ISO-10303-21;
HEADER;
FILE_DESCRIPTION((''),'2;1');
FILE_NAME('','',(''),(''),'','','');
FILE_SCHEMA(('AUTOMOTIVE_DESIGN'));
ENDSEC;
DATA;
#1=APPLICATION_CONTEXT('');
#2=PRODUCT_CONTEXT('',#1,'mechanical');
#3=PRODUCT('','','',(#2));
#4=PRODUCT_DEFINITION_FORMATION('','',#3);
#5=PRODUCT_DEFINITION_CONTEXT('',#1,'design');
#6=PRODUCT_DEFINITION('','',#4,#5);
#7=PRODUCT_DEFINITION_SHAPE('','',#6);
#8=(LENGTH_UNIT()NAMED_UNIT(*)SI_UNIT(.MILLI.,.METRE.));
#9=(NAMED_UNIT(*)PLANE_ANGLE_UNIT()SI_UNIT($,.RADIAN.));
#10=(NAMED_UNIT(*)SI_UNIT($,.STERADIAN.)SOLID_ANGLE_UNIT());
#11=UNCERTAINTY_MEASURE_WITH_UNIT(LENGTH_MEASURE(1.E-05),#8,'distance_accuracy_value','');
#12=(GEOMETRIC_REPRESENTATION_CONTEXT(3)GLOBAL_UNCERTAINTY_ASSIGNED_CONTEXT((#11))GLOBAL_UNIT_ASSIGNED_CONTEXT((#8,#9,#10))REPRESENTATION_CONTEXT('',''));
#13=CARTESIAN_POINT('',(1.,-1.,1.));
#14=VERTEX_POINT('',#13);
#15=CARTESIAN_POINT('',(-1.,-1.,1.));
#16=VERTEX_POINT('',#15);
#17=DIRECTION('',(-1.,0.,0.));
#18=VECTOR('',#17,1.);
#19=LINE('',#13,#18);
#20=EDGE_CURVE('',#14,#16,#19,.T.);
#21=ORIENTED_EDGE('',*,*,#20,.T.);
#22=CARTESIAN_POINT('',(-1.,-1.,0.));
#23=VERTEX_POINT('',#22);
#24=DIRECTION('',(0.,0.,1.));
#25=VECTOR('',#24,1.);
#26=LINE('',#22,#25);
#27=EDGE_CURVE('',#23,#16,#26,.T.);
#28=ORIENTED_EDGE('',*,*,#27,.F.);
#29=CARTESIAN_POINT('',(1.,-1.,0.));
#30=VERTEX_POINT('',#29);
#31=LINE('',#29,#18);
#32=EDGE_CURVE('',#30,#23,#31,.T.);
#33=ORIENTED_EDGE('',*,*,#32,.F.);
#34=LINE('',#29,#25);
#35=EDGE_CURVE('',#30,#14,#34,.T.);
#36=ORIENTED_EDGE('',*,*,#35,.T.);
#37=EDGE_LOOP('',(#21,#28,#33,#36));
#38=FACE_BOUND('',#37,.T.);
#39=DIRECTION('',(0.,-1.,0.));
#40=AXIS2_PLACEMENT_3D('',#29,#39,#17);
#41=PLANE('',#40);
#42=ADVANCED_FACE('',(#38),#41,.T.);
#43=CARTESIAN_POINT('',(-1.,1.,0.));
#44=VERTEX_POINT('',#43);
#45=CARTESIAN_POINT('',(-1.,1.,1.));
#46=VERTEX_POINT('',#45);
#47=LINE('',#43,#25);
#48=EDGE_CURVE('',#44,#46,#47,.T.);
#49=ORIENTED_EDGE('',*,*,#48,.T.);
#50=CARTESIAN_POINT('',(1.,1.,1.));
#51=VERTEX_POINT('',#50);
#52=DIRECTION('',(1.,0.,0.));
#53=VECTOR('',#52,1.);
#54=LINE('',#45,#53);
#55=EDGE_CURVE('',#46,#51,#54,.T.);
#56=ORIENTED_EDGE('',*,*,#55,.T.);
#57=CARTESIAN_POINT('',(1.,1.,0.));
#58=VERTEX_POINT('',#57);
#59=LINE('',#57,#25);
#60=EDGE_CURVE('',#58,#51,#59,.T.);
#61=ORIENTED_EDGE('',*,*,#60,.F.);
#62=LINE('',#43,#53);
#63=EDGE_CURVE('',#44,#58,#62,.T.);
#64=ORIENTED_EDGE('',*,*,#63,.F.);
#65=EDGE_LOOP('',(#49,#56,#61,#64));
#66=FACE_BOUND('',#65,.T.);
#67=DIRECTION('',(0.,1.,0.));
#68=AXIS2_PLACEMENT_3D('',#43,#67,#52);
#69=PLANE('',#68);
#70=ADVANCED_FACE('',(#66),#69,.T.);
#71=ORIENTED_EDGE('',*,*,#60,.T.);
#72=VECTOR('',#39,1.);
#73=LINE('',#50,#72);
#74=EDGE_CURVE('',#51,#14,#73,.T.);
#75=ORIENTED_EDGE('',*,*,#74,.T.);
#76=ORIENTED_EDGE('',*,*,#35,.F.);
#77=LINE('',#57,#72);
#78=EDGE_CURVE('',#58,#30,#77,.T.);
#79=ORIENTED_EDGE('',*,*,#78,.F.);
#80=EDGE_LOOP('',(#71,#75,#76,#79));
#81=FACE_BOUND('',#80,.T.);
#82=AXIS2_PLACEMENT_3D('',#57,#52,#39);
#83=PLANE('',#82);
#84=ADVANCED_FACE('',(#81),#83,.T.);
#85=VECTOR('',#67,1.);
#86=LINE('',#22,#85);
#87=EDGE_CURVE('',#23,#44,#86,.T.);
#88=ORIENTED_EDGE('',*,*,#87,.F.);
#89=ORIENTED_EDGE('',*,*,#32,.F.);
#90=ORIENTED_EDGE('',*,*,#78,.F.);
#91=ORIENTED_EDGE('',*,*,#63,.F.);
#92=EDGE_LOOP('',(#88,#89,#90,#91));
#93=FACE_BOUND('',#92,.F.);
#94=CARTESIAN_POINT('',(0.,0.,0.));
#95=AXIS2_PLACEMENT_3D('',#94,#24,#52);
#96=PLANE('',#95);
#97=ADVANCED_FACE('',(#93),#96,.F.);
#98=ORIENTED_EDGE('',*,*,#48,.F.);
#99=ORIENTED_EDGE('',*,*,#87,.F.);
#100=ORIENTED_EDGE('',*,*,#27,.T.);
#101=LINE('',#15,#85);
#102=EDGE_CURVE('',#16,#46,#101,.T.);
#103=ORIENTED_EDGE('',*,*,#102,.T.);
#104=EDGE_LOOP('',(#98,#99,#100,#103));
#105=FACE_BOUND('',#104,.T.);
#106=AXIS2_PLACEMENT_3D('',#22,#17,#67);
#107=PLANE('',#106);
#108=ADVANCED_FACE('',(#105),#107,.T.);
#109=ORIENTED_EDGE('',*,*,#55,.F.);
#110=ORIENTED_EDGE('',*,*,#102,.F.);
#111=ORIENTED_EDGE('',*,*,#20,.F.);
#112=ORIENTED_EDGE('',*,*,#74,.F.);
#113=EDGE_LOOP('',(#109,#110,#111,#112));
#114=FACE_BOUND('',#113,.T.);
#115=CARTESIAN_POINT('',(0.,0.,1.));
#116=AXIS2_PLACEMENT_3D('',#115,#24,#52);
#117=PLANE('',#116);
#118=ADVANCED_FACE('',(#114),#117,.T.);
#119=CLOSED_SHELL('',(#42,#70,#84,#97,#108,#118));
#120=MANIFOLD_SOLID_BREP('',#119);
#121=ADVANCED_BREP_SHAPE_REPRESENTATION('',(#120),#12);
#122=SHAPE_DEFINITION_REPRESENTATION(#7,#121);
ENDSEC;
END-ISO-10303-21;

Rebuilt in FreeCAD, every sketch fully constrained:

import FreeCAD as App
import Part
import Sketcher
from FreeCAD import Vector
Q = App.Units.Quantity

doc = App.newDocument("Part")
body = doc.addObject("PartDesign::Body", "Body")

# Sketch on XY plane
sketch1 = body.newObject("Sketcher::SketchObject", "Sketch")
sketch1.AttachmentSupport = (doc.getObject("XY_Plane"), [""])
sketch1.MapMode = "FlatFace"
sketch1.addGeometry(Part.LineSegment(Vector(-1, -1, 0), Vector(1, -1, 0)), False)
sketch1.addGeometry(Part.LineSegment(Vector(1, -1, 0), Vector(1, 1, 0)), False)
sketch1.addGeometry(Part.LineSegment(Vector(1, 1, 0), Vector(-1, 1, 0)), False)
sketch1.addGeometry(Part.LineSegment(Vector(-1, 1, 0), Vector(-1, -1, 0)), False)
sketch1.addConstraint(Sketcher.Constraint("Coincident", 0, 2, 1, 1))
sketch1.addConstraint(Sketcher.Constraint("Coincident", 1, 2, 2, 1))
sketch1.addConstraint(Sketcher.Constraint("Coincident", 2, 2, 3, 1))
sketch1.addConstraint(Sketcher.Constraint("Coincident", 3, 2, 0, 1))
sketch1.addConstraint(Sketcher.Constraint("Horizontal", 0))
sketch1.addConstraint(Sketcher.Constraint("Vertical", 1))
sketch1.addConstraint(Sketcher.Constraint("Horizontal", 2))
sketch1.addConstraint(Sketcher.Constraint("Vertical", 3))
sketch1.addConstraint(Sketcher.Constraint("Symmetric", 0, 2, 2, 2, -1, 1))
sketch1.addConstraint(Sketcher.Constraint("Equal", 2, 1))
sketch1.addConstraint(Sketcher.Constraint("DistanceX", 0, 1, 0, 2, Q("2 mm")))
pad1 = body.newObject("PartDesign::Pad", "Pad")
pad1.Profile = sketch1
pad1.Length = 1

doc.recompute()
